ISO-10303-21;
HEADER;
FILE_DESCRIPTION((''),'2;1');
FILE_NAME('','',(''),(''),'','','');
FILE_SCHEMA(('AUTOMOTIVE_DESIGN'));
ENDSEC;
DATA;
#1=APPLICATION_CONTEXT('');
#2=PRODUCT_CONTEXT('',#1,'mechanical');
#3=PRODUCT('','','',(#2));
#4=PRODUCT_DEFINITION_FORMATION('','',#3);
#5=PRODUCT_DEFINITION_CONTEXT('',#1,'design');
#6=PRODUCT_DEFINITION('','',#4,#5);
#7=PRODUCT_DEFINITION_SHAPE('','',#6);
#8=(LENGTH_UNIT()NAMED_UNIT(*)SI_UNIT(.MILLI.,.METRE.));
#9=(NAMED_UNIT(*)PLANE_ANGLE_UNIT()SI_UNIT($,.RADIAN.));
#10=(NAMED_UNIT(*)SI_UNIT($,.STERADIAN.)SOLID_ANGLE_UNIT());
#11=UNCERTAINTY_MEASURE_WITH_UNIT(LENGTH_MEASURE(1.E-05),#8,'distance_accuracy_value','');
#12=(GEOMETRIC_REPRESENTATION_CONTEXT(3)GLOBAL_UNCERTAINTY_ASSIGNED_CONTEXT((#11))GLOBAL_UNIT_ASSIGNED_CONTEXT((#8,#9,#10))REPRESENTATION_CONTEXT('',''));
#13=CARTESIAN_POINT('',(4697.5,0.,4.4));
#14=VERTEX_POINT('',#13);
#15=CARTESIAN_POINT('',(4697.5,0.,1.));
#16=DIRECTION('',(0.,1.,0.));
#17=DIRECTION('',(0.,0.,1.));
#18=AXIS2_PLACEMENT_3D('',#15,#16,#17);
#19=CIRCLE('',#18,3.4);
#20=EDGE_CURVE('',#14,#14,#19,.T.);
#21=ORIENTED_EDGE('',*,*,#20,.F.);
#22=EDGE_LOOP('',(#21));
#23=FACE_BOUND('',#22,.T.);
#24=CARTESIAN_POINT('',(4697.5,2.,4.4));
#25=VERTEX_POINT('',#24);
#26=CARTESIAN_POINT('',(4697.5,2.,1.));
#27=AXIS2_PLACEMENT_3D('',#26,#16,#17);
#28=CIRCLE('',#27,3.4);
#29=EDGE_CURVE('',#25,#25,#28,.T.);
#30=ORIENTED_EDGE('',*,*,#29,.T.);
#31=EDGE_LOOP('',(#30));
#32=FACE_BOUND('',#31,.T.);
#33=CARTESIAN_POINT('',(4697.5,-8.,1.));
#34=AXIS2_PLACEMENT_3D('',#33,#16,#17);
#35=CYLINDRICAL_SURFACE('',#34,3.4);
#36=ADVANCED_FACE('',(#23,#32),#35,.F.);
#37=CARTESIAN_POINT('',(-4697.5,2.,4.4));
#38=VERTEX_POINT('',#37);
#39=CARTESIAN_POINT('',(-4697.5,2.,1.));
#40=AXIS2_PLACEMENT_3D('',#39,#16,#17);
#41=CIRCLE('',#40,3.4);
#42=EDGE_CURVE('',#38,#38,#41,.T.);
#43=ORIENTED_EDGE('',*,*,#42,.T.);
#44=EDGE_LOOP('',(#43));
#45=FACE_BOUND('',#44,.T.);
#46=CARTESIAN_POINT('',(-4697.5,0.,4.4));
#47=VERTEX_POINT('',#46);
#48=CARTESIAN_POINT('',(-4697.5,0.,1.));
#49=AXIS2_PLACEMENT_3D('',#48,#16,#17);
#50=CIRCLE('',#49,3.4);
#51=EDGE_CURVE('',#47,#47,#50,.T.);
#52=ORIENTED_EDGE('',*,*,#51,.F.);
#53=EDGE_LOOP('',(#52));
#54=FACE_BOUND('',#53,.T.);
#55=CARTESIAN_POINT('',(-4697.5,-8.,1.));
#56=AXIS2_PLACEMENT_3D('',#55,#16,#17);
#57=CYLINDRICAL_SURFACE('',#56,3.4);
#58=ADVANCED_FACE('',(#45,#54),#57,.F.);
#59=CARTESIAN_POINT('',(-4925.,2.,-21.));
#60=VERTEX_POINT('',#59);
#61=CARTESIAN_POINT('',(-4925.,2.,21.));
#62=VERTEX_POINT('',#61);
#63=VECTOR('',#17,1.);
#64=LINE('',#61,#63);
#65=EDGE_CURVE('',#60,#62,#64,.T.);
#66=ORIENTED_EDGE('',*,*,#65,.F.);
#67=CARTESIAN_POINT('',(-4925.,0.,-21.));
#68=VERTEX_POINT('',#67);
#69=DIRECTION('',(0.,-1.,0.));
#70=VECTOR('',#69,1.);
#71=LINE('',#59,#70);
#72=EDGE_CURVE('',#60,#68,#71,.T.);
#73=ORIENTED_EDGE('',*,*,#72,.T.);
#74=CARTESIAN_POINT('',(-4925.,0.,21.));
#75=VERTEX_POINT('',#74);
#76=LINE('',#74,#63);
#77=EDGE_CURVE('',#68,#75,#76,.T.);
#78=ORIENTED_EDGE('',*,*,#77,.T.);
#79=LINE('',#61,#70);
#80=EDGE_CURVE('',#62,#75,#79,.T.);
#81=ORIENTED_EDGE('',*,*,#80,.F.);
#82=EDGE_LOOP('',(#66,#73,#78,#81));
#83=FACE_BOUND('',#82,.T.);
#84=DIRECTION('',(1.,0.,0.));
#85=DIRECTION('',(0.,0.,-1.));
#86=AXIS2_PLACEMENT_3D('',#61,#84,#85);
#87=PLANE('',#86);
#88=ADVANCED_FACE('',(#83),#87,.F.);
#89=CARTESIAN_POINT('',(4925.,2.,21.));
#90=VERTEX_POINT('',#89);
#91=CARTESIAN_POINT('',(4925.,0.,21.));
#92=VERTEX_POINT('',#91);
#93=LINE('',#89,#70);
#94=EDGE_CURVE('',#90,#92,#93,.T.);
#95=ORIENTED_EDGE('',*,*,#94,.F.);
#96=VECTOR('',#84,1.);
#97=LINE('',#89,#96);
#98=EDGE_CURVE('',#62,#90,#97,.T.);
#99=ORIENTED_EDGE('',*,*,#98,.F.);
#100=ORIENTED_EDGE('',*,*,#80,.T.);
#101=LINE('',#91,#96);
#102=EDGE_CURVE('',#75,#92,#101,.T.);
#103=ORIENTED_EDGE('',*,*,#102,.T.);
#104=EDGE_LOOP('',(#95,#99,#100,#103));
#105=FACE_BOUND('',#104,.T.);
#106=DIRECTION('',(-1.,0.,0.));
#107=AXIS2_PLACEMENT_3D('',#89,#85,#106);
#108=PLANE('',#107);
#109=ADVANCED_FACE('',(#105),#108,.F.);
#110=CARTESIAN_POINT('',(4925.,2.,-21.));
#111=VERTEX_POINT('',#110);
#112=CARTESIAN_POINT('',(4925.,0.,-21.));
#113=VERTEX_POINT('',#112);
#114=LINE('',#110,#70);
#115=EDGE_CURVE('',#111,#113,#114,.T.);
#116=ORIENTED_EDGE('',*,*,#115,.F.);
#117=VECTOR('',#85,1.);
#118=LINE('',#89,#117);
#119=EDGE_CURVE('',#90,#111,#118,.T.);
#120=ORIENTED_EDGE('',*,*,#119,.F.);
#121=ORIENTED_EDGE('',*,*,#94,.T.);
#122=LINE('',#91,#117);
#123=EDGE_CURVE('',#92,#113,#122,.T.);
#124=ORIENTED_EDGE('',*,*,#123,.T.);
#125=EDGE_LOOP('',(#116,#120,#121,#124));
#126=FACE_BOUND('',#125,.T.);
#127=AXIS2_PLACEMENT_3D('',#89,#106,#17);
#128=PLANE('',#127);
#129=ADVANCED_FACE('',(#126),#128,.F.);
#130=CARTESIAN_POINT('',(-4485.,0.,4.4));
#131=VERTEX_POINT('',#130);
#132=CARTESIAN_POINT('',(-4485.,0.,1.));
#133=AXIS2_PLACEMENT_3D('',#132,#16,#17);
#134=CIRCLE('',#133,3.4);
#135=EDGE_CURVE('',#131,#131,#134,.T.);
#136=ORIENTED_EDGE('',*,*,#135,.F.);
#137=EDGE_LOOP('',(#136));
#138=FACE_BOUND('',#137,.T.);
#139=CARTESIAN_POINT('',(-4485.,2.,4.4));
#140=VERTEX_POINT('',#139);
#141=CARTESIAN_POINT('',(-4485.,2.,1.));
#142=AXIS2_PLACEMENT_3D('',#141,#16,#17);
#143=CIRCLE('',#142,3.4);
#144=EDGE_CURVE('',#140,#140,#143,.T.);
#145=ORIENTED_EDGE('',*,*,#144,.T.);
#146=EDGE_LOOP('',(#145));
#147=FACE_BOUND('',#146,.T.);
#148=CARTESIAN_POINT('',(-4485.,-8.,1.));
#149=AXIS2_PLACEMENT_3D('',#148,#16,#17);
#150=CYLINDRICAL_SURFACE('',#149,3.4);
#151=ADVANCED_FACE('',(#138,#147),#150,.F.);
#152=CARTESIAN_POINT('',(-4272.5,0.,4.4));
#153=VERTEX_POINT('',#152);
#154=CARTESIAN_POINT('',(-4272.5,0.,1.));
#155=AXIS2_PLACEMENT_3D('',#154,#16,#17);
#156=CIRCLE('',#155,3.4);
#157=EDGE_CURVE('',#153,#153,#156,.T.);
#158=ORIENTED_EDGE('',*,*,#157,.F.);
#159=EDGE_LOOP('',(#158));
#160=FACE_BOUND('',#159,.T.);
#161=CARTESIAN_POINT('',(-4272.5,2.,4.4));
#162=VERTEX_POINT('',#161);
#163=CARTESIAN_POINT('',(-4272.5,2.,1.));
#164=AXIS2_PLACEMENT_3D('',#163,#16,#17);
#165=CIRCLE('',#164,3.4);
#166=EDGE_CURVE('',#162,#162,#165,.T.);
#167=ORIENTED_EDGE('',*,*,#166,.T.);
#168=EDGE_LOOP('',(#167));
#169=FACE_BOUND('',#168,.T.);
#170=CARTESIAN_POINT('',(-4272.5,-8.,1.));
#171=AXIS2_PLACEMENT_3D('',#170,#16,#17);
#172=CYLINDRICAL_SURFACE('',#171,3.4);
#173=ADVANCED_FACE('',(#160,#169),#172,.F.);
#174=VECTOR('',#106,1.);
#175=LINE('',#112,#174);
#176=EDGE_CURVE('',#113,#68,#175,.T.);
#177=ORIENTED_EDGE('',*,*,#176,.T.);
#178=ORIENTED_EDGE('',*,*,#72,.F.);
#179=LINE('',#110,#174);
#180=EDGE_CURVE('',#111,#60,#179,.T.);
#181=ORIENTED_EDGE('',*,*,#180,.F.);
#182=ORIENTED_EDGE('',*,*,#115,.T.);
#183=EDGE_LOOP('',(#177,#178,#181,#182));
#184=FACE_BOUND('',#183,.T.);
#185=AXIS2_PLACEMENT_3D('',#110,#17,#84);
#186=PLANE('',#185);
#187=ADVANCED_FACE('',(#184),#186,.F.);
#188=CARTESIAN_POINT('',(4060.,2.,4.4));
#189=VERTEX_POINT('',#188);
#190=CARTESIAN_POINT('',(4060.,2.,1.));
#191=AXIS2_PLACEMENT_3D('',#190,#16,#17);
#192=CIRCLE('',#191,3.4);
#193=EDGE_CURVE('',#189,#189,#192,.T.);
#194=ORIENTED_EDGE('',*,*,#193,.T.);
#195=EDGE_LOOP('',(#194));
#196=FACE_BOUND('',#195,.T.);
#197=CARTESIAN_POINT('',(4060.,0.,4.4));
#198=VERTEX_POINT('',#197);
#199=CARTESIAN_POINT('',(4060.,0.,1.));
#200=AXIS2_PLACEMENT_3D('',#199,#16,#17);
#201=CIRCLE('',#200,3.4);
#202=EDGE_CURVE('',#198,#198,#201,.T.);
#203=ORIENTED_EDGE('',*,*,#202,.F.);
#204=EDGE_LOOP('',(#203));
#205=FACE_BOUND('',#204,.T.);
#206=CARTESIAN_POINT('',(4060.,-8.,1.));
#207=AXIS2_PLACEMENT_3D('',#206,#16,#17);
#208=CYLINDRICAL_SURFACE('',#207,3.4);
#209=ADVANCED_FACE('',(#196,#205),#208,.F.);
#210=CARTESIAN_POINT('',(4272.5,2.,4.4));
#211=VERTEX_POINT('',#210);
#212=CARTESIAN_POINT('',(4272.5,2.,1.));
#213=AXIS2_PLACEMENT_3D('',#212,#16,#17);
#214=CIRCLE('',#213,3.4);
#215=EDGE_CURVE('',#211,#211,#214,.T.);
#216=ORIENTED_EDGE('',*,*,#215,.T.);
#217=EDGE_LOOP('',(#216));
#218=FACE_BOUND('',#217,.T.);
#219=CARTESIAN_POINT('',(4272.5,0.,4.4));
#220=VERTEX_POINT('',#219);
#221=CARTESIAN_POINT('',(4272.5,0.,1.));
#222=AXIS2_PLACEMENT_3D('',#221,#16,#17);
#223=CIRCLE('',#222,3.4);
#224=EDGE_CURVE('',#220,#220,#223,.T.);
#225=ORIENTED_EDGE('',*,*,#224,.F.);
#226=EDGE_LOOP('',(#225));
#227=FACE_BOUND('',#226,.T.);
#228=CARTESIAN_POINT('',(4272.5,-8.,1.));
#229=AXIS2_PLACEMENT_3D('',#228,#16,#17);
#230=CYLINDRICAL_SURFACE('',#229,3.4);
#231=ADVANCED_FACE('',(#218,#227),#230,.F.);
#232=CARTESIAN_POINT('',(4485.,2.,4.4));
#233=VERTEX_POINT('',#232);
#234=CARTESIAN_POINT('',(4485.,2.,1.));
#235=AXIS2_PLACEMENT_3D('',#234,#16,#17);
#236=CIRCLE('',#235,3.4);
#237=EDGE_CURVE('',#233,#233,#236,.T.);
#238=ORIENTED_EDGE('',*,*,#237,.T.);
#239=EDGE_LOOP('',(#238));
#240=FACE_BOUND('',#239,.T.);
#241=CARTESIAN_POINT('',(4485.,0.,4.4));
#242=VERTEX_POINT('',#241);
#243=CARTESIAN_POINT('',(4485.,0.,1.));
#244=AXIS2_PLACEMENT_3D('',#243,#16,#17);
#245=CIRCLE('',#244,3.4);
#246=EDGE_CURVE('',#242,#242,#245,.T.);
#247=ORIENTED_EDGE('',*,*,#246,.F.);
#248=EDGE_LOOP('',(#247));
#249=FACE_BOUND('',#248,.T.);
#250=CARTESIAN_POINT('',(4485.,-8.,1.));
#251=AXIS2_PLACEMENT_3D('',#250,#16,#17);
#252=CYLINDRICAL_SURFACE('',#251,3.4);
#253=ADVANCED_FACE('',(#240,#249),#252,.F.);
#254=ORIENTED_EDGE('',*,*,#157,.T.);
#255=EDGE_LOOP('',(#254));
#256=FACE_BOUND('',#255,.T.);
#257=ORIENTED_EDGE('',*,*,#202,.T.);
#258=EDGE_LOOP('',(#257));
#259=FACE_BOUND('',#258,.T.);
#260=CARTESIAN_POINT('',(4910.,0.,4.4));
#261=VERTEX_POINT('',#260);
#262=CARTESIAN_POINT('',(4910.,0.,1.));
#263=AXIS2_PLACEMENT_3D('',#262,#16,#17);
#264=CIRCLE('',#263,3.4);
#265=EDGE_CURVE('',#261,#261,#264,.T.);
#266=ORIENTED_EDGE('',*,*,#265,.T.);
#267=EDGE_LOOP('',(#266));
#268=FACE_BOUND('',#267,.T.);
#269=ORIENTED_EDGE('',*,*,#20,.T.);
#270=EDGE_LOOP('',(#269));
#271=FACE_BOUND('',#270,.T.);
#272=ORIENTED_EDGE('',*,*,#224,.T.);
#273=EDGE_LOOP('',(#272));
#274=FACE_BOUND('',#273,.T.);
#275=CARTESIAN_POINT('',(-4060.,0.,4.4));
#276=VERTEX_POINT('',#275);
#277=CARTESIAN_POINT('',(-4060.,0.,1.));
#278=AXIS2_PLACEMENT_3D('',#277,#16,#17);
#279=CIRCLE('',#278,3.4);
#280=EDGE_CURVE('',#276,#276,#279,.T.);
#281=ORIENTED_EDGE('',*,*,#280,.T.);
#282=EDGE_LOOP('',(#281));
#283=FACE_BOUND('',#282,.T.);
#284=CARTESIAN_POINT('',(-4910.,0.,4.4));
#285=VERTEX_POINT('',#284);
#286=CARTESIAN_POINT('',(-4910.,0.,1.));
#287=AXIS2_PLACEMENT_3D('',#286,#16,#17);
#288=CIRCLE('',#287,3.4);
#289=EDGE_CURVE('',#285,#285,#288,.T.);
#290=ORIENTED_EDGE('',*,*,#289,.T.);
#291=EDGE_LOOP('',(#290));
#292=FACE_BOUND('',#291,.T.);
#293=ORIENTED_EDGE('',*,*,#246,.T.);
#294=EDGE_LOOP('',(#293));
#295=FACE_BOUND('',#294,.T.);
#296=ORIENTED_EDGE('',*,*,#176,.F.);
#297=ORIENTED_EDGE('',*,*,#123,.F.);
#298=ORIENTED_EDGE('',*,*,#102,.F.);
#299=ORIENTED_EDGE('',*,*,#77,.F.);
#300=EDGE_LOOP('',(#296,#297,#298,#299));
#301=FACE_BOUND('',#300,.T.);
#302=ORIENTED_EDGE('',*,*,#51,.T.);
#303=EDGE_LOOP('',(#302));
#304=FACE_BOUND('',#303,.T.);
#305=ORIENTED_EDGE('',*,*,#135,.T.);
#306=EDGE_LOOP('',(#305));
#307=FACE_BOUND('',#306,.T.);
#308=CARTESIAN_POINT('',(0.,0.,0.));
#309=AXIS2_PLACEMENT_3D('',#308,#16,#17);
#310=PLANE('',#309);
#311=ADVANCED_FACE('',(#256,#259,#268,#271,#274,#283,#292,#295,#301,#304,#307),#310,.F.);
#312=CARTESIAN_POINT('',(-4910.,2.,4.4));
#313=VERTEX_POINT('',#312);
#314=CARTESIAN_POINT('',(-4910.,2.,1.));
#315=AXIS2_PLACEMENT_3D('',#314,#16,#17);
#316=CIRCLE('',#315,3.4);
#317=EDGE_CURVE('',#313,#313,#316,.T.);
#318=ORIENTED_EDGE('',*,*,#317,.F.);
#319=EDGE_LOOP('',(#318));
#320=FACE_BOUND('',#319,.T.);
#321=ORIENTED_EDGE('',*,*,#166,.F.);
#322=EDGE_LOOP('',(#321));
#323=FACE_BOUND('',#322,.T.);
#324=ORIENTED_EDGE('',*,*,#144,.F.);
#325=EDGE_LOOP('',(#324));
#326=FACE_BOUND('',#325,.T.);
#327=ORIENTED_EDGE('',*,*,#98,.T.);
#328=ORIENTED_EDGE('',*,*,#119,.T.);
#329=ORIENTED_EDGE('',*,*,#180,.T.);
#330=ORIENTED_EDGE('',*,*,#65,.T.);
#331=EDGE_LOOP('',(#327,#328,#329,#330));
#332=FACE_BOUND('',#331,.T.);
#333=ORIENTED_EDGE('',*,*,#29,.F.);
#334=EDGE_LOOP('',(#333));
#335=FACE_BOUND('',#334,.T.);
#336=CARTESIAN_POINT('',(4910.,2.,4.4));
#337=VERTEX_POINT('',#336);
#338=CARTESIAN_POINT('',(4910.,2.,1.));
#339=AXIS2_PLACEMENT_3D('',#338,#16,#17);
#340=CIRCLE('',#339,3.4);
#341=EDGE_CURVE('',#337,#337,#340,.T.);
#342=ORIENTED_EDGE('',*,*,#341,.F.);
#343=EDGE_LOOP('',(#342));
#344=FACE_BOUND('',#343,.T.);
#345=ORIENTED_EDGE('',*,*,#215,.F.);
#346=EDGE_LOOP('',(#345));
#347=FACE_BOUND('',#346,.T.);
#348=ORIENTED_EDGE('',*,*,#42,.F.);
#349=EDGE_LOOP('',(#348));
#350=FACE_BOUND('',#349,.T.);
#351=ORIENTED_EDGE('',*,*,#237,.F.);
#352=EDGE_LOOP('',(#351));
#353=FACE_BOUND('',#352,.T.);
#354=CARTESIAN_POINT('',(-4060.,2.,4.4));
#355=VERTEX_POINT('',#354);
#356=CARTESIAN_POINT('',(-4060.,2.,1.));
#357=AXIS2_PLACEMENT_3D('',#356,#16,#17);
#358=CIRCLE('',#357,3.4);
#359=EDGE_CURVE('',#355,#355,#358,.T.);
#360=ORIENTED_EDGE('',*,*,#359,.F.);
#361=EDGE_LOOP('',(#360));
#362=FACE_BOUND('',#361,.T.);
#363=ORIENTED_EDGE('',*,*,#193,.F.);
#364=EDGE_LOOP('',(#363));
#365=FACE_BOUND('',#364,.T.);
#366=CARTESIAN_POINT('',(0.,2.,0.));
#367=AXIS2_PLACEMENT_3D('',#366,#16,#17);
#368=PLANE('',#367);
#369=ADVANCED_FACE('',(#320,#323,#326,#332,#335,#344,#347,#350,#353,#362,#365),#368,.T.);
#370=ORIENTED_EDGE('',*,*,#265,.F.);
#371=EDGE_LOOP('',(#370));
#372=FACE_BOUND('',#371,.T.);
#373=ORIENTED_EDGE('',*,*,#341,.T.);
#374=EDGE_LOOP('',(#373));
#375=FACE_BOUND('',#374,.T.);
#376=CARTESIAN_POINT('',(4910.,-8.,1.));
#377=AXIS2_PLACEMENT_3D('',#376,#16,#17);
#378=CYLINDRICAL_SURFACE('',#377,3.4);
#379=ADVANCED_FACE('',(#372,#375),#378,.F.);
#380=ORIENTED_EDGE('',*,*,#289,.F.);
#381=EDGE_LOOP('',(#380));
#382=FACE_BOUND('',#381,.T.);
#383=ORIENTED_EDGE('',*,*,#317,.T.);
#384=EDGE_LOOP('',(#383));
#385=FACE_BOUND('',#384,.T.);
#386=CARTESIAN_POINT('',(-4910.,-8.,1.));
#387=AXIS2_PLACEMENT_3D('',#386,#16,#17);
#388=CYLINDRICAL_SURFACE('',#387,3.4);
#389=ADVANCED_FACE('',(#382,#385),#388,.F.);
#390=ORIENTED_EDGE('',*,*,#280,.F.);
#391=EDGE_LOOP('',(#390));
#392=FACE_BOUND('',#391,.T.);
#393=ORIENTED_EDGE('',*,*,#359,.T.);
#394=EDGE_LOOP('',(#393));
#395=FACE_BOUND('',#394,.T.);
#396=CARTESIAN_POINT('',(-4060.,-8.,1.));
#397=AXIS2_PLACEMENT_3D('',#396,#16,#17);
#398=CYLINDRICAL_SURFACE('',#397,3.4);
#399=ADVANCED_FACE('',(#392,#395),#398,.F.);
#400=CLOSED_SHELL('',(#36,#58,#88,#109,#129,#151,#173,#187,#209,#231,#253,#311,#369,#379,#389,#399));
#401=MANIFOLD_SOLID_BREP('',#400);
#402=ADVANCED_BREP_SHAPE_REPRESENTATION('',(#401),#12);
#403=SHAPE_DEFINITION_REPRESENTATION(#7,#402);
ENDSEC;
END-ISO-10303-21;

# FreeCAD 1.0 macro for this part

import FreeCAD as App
import Part
import Sketcher
Q = App.Units.Quantity


def add_polygon(sketch, points):
    """Adds a closed chain of lines whose ends are joined by coincident constraints."""
    first, n = sketch.GeometryCount, len(points)
    for a, b in zip(points, points[1:] + points[:1]):
        sketch.addGeometry(Part.LineSegment(App.Vector(*a, 0), App.Vector(*b, 0)), False)
    for i in range(n):
        sketch.addConstraint(Sketcher.Constraint("Coincident", first + i, 2, first + (i + 1) % n, 1))

doc = App.newDocument("Part")
body = doc.addObject("PartDesign::Body", "Body")

# Sketch on XZ plane
sketch1 = body.newObject("Sketcher::SketchObject", "Sketch")
sketch1.AttachmentSupport = (doc.getObject("XZ_Plane"), [""])
sketch1.MapMode = "FlatFace"
add_polygon(sketch1, [(-4925, -21), (-4925, 21), (4925, 21), (4925, -21)])  # lines 0-3
sketch1.addConstraint([
    Sketcher.Constraint("Vertical", 0),
    Sketcher.Constraint("Horizontal", 1),
    Sketcher.Constraint("Vertical", 2),
    Sketcher.Constraint("Horizontal", 3),
    Sketcher.Constraint("Symmetric", 0, 2, 2, 2, -1, 1),
    Sketcher.Constraint("DistanceX", 1, 1, 1, 2, Q("9850 mm")),
    Sketcher.Constraint("DistanceY", 0, 1, 0, 2, Q("42 mm")),
])
pad1 = body.newObject("PartDesign::Pad", "Pad")
pad1.Profile = sketch1
pad1.Length = 2
pad1.Reversed = True

# Sketch on XZ plane
sketch2 = body.newObject("Sketcher::SketchObject", "Sketch001")
sketch2.AttachmentSupport = (doc.getObject("XZ_Plane"), [""])
sketch2.MapMode = "FlatFace"
sketch2.AttachmentOffset = App.Placement(App.Vector(0, 0, -2), App.Rotation())
sketch2.addGeometry([
    Part.Circle(App.Vector(-4910, 1, 0), App.Vector(0, 0, 1), 3.4),  # 0
    Part.Circle(App.Vector(-4697.5, 1, 0), App.Vector(0, 0, 1), 3.4),  # 1
    Part.Circle(App.Vector(-4485, 1, 0), App.Vector(0, 0, 1), 3.4),  # 2
    Part.Circle(App.Vector(-4272.5, 1, 0), App.Vector(0, 0, 1), 3.4),  # 3
    Part.Circle(App.Vector(-4060, 1, 0), App.Vector(0, 0, 1), 3.4),  # 4
    Part.Circle(App.Vector(4910, 1, 0), App.Vector(0, 0, 1), 3.4),  # 5
    Part.Circle(App.Vector(4697.5, 1, 0), App.Vector(0, 0, 1), 3.4),  # 6
    Part.Circle(App.Vector(4485, 1, 0), App.Vector(0, 0, 1), 3.4),  # 7
    Part.Circle(App.Vector(4272.5, 1, 0), App.Vector(0, 0, 1), 3.4),  # 8
    Part.Circle(App.Vector(4060, 1, 0), App.Vector(0, 0, 1), 3.4),  # 9
], False)
sketch2.addConstraint([
    Sketcher.Constraint("Equal", 0, 1),
    Sketcher.Constraint("Equal", 1, 2),
    Sketcher.Constraint("Equal", 2, 3),
    Sketcher.Constraint("Equal", 3, 4),
    Sketcher.Constraint("Equal", 4, 5),
    Sketcher.Constraint("Equal", 5, 6),
    Sketcher.Constraint("Equal", 6, 7),
    Sketcher.Constraint("Equal", 7, 8),
    Sketcher.Constraint("Equal", 8, 9),
    Sketcher.Constraint("Symmetric", 0, 3, 5, 3, -2),
    Sketcher.Constraint("Symmetric", 1, 3, 6, 3, -2),
    Sketcher.Constraint("Symmetric", 2, 3, 7, 3, -2),
    Sketcher.Constraint("Symmetric", 3, 3, 8, 3, -2),
    Sketcher.Constraint("Symmetric", 4, 3, 9, 3, -2),
    Sketcher.Constraint("Horizontal", 0, 3, 1, 3),
    Sketcher.Constraint("Horizontal", 1, 3, 2, 3),
    Sketcher.Constraint("Horizontal", 2, 3, 3, 3),
    Sketcher.Constraint("Horizontal", 3, 3, 4, 3),
    Sketcher.Constraint("Diameter", 0, Q("6.8 mm")),
    Sketcher.Constraint("DistanceX", 0, 3, -1, 1, Q("4910 mm")),
    Sketcher.Constraint("DistanceY", -1, 1, 0, 3, Q("1 mm")),
    Sketcher.Constraint("DistanceX", 2, 3, -1, 1, Q("4485 mm")),
    Sketcher.Constraint("DistanceX", 4, 3, -1, 1, Q("4060 mm")),
    Sketcher.Constraint("DistanceX", 1, 3, 3, 3, Q("425 mm")),
    Sketcher.Constraint("DistanceX", 3, 3, 6, 3, Q("8970 mm")),
])
pocket1 = body.newObject("PartDesign::Pocket", "Pocket")
pocket1.Profile = sketch2
pocket1.Length = 10
pocket1.Reversed = True

doc.recompute()
